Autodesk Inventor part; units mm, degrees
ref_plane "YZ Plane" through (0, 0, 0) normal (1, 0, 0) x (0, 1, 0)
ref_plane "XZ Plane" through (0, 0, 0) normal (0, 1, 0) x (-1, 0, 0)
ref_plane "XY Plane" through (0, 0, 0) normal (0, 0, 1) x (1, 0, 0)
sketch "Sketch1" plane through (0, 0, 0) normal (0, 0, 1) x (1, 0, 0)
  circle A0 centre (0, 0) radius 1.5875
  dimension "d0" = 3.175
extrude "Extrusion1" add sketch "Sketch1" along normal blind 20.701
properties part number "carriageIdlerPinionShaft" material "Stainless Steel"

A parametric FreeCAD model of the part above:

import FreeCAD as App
import Part
import Sketcher
Q = App.Units.Quantity

doc = App.newDocument("Part")
body = doc.addObject("PartDesign::Body", "Body")

# Sketch on XY plane
sketch1 = body.newObject("Sketcher::SketchObject", "Sketch")
sketch1.AttachmentSupport = (doc.getObject("XY_Plane"), [""])
sketch1.MapMode = "FlatFace"
sketch1.addGeometry(Part.Circle(App.Vector(0, 0, 0), App.Vector(0, 0, 1), 1.5875), False)
sketch1.addConstraint(Sketcher.Constraint("Coincident", 0, 3, -1, 1))
sketch1.addConstraint(Sketcher.Constraint("Diameter", 0, Q("0.125 in")))
pad1 = body.newObject("PartDesign::Pad", "Pad")
pad1.Profile = sketch1
pad1.Length = Q("0.815 in")

doc.recompute()
